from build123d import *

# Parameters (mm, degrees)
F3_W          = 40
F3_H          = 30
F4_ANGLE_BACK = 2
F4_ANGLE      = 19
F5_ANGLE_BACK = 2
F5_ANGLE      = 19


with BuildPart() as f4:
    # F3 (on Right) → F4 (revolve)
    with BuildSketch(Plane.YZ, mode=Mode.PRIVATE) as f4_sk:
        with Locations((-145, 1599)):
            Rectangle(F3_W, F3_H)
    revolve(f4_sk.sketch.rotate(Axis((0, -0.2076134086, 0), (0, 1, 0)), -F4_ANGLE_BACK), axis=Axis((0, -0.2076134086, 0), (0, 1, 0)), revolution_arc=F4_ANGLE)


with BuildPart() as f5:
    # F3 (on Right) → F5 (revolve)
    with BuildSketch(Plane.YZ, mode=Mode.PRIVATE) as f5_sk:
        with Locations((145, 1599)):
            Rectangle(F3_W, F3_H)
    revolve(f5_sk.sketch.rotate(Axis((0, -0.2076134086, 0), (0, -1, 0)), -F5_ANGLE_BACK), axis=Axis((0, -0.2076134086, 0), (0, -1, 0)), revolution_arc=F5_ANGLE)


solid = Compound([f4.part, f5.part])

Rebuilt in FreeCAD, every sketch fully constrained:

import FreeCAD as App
import Part
import Sketcher
from FreeCAD import Vector

doc = App.newDocument("Part")
params = doc.addObject("Spreadsheet::Sheet", "Params")
for row, (alias, value) in enumerate([
    ("sketch1_width", "40 mm"),
    ("sketch1_height", "30 mm"),
    ("revolution_angle", "19 deg"),
    ("sketch2_width", "40 mm"),
    ("sketch2_height", "30 mm"),
    ("revolution2_angle", "19 deg"),
], start=1):
    params.set(f"A{row}", alias)
    params.set(f"B{row}", "=" + value)
    params.setAlias(f"B{row}", alias)

body = doc.addObject("PartDesign::Body", "Body")

sketch1 = doc.addObject("Sketcher::SketchObject", "Sketch")
body.addObject(sketch1)
sketch1.Placement = App.Placement(Vector(0, 0, 0), App.Rotation(Vector(0, 1, 0), Vector(-0.034899497, 0, 0.999390827), Vector(0.999390827, 0, 0.034899497), "ZXY"))
sketch1.addGeometry(Part.LineSegment(Vector(-165, 1614, 0), Vector(-165, 1584, 0)), False)
sketch1.addGeometry(Part.LineSegment(Vector(-165, 1584, 0), Vector(-125, 1584, 0)), False)
sketch1.addGeometry(Part.LineSegment(Vector(-125, 1584, 0), Vector(-125, 1614, 0)), False)
sketch1.addGeometry(Part.LineSegment(Vector(-125, 1614, 0), Vector(-165, 1614, 0)), False)
sketch1.addConstraint(Sketcher.Constraint("Coincident", 0, 2, 1, 1))
sketch1.addConstraint(Sketcher.Constraint("Coincident", 1, 2, 2, 1))
sketch1.addConstraint(Sketcher.Constraint("Coincident", 2, 2, 3, 1))
sketch1.addConstraint(Sketcher.Constraint("Coincident", 3, 2, 0, 1))
sketch1.addConstraint(Sketcher.Constraint("Vertical", 0))
sketch1.addConstraint(Sketcher.Constraint("Horizontal", 1))
sketch1.addConstraint(Sketcher.Constraint("Vertical", 2))
sketch1.addConstraint(Sketcher.Constraint("Horizontal", 3))
sketch1.addConstraint(Sketcher.Constraint("DistanceX", 1, 1, 1, 2, 40.0))
sketch1.addConstraint(Sketcher.Constraint("DistanceY", 0, 2, 0, 1, 30.0))
sketch1.addConstraint(Sketcher.Constraint("DistanceX", 0, 2, -1, 1, 165.0))
sketch1.addConstraint(Sketcher.Constraint("DistanceY", -1, 1, 0, 2, 1584.0))
sketch1.setExpression("Constraints[8]", "Params.sketch1_width")
sketch1.setExpression("Constraints[9]", "Params.sketch1_height")
revolution = doc.addObject("PartDesign::Revolution", "Revolution")
body.addObject(revolution)
revolution.Profile = sketch1
revolution.ReferenceAxis = (sketch1, ["H_Axis"])
revolution.setExpression("Angle", "Params.revolution_angle")
body2 = doc.addObject("PartDesign::Body", "Body001")

sketch2 = doc.addObject("Sketcher::SketchObject", "Sketch001")
body2.addObject(sketch2)
sketch2.Placement = App.Placement(Vector(0, 0, 0), App.Rotation(Vector(0, 1, 0), Vector(0.034899497, 0, 0.999390827), Vector(0.999390827, 0, -0.034899497), "ZXY"))
sketch2.addGeometry(Part.LineSegment(Vector(125, 1614, 0), Vector(125, 1584, 0)), False)
sketch2.addGeometry(Part.LineSegment(Vector(125, 1584, 0), Vector(165, 1584, 0)), False)
sketch2.addGeometry(Part.LineSegment(Vector(165, 1584, 0), Vector(165, 1614, 0)), False)
sketch2.addGeometry(Part.LineSegment(Vector(165, 1614, 0), Vector(125, 1614, 0)), False)
sketch2.addConstraint(Sketcher.Constraint("Coincident", 0, 2, 1, 1))
sketch2.addConstraint(Sketcher.Constraint("Coincident", 1, 2, 2, 1))
sketch2.addConstraint(Sketcher.Constraint("Coincident", 2, 2, 3, 1))
sketch2.addConstraint(Sketcher.Constraint("Coincident", 3, 2, 0, 1))
sketch2.addConstraint(Sketcher.Constraint("Vertical", 0))
sketch2.addConstraint(Sketcher.Constraint("Horizontal", 1))
sketch2.addConstraint(Sketcher.Constraint("Vertical", 2))
sketch2.addConstraint(Sketcher.Constraint("Horizontal", 3))
sketch2.addConstraint(Sketcher.Constraint("DistanceX", 1, 1, 1, 2, 40.0))
sketch2.addConstraint(Sketcher.Constraint("DistanceY", 0, 2, 0, 1, 30.0))
sketch2.addConstraint(Sketcher.Constraint("DistanceX", -1, 1, 0, 2, 125.0))
sketch2.addConstraint(Sketcher.Constraint("DistanceY", -1, 1, 0, 2, 1584.0))
sketch2.setExpression("Constraints[8]", "Params.sketch2_width")
sketch2.setExpression("Constraints[9]", "Params.sketch2_height")
revolution2 = doc.addObject("PartDesign::Revolution", "Revolution001")
body2.addObject(revolution2)
revolution2.Profile = sketch2
revolution2.ReferenceAxis = (sketch2, ["H_Axis"])
revolution2.setExpression("Angle", "Params.revolution2_angle")
revolution2.Reversed = True

doc.recompute()
